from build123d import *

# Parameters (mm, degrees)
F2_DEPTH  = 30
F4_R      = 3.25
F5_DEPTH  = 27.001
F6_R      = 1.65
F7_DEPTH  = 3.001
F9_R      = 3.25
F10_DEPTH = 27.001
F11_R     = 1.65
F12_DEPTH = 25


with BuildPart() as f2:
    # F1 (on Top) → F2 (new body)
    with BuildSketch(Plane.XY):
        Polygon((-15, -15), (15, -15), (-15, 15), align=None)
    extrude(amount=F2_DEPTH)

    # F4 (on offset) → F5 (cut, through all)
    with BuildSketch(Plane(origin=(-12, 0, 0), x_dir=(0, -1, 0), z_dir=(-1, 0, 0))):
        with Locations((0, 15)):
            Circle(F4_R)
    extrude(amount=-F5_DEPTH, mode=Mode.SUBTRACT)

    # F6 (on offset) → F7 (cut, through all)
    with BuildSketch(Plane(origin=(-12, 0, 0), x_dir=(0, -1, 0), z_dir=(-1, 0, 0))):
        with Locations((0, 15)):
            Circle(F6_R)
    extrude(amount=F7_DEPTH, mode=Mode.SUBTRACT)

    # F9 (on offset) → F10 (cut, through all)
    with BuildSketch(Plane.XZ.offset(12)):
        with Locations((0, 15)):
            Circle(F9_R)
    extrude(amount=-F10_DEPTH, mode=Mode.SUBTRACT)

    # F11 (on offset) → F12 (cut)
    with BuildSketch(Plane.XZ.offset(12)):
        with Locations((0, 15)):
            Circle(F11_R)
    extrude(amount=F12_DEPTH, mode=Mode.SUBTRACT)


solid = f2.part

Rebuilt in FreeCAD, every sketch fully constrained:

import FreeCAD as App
import Part
import Sketcher
from FreeCAD import Vector
Q = App.Units.Quantity

doc = App.newDocument("Part")
body = doc.addObject("PartDesign::Body", "Body")

sketch1 = body.newObject("Sketcher::SketchObject", "Sketch")
sketch1.AttachmentSupport = (doc.getObject("XY_Plane"), [""])
sketch1.MapMode = "FlatFace"
sketch1.addGeometry(Part.LineSegment(Vector(-15, -15, 0), Vector(15, -15, 0)), False)
sketch1.addGeometry(Part.LineSegment(Vector(15, -15, 0), Vector(-15, 15, 0)), False)
sketch1.addGeometry(Part.LineSegment(Vector(-15, 15, 0), Vector(-15, -15, 0)), False)
sketch1.addConstraint(Sketcher.Constraint("Coincident", 0, 2, 1, 1))
sketch1.addConstraint(Sketcher.Constraint("Coincident", 1, 2, 2, 1))
sketch1.addConstraint(Sketcher.Constraint("Coincident", 2, 2, 0, 1))
sketch1.addConstraint(Sketcher.Constraint("Horizontal", 0))
sketch1.addConstraint(Sketcher.Constraint("Vertical", 2))
sketch1.addConstraint(Sketcher.Constraint("Symmetric", 0, 2, 1, 2, -1, 1))
sketch1.addConstraint(Sketcher.Constraint("Equal", 0, 2))
sketch1.addConstraint(Sketcher.Constraint("DistanceX", 0, 1, 0, 2, Q("30 mm")))
pad1 = body.newObject("PartDesign::Pad", "Pad")
pad1.Profile = sketch1
pad1.Length = 30

sketch2 = body.newObject("Sketcher::SketchObject", "Sketch001")
sketch2.AttachmentSupport = (doc.getObject("YZ_Plane"), [""])
sketch2.MapMode = "FlatFace"
sketch2.AttachmentOffset = App.Placement(Vector(0, 0, -12), App.Rotation())
sketch2.addGeometry(Part.Circle(Vector(0, 15, 0), Vector(0, 0, 1), 3.25), False)
sketch2.addConstraint(Sketcher.Constraint("PointOnObject", 0, 3, -2))
sketch2.addConstraint(Sketcher.Constraint("Diameter", 0, Q("6.5 mm")))
sketch2.addConstraint(Sketcher.Constraint("DistanceY", -1, 1, 0, 3, Q("15 mm")))
pocket1 = body.newObject("PartDesign::Pocket", "Pocket")
pocket1.Profile = sketch2
pocket1.Type = "ThroughAll"
pocket1.Reversed = True

sketch3 = body.newObject("Sketcher::SketchObject", "Sketch002")
sketch3.AttachmentSupport = (doc.getObject("YZ_Plane"), [""])
sketch3.MapMode = "FlatFace"
sketch3.AttachmentOffset = App.Placement(Vector(0, 0, -12), App.Rotation())
sketch3.addGeometry(Part.Circle(Vector(0, 15, 0), Vector(0, 0, 1), 1.65), False)
sketch3.addConstraint(Sketcher.Constraint("PointOnObject", 0, 3, -2))
sketch3.addConstraint(Sketcher.Constraint("Diameter", 0, Q("3.3 mm")))
sketch3.addConstraint(Sketcher.Constraint("DistanceY", -1, 1, 0, 3, Q("15 mm")))
pocket2 = body.newObject("PartDesign::Pocket", "Pocket001")
pocket2.Profile = sketch3
pocket2.Type = "ThroughAll"

sketch4 = body.newObject("Sketcher::SketchObject", "Sketch003")
sketch4.AttachmentSupport = (doc.getObject("XZ_Plane"), [""])
sketch4.MapMode = "FlatFace"
sketch4.AttachmentOffset = App.Placement(Vector(0, 0, 12), App.Rotation())
sketch4.addGeometry(Part.Circle(Vector(0, 15, 0), Vector(0, 0, 1), 3.25), False)
sketch4.addConstraint(Sketcher.Constraint("PointOnObject", 0, 3, -2))
sketch4.addConstraint(Sketcher.Constraint("Diameter", 0, Q("6.5 mm")))
sketch4.addConstraint(Sketcher.Constraint("DistanceY", -1, 1, 0, 3, Q("15 mm")))
pocket3 = body.newObject("PartDesign::Pocket", "Pocket002")
pocket3.Profile = sketch4
pocket3.Type = "ThroughAll"

sketch5 = body.newObject("Sketcher::SketchObject", "Sketch004")
sketch5.AttachmentSupport = (doc.getObject("XZ_Plane"), [""])
sketch5.MapMode = "FlatFace"
sketch5.AttachmentOffset = App.Placement(Vector(0, 0, 12), App.Rotation())
sketch5.addGeometry(Part.Circle(Vector(0, 15, 0), Vector(0, 0, 1), 1.65), False)
sketch5.addConstraint(Sketcher.Constraint("PointOnObject", 0, 3, -2))
sketch5.addConstraint(Sketcher.Constraint("Diameter", 0, Q("3.3 mm")))
sketch5.addConstraint(Sketcher.Constraint("DistanceY", -1, 1, 0, 3, Q("15 mm")))
pocket4 = body.newObject("PartDesign::Pocket", "Pocket003")
pocket4.Profile = sketch5
pocket4.Length = 25
pocket4.Reversed = True

doc.recompute()
